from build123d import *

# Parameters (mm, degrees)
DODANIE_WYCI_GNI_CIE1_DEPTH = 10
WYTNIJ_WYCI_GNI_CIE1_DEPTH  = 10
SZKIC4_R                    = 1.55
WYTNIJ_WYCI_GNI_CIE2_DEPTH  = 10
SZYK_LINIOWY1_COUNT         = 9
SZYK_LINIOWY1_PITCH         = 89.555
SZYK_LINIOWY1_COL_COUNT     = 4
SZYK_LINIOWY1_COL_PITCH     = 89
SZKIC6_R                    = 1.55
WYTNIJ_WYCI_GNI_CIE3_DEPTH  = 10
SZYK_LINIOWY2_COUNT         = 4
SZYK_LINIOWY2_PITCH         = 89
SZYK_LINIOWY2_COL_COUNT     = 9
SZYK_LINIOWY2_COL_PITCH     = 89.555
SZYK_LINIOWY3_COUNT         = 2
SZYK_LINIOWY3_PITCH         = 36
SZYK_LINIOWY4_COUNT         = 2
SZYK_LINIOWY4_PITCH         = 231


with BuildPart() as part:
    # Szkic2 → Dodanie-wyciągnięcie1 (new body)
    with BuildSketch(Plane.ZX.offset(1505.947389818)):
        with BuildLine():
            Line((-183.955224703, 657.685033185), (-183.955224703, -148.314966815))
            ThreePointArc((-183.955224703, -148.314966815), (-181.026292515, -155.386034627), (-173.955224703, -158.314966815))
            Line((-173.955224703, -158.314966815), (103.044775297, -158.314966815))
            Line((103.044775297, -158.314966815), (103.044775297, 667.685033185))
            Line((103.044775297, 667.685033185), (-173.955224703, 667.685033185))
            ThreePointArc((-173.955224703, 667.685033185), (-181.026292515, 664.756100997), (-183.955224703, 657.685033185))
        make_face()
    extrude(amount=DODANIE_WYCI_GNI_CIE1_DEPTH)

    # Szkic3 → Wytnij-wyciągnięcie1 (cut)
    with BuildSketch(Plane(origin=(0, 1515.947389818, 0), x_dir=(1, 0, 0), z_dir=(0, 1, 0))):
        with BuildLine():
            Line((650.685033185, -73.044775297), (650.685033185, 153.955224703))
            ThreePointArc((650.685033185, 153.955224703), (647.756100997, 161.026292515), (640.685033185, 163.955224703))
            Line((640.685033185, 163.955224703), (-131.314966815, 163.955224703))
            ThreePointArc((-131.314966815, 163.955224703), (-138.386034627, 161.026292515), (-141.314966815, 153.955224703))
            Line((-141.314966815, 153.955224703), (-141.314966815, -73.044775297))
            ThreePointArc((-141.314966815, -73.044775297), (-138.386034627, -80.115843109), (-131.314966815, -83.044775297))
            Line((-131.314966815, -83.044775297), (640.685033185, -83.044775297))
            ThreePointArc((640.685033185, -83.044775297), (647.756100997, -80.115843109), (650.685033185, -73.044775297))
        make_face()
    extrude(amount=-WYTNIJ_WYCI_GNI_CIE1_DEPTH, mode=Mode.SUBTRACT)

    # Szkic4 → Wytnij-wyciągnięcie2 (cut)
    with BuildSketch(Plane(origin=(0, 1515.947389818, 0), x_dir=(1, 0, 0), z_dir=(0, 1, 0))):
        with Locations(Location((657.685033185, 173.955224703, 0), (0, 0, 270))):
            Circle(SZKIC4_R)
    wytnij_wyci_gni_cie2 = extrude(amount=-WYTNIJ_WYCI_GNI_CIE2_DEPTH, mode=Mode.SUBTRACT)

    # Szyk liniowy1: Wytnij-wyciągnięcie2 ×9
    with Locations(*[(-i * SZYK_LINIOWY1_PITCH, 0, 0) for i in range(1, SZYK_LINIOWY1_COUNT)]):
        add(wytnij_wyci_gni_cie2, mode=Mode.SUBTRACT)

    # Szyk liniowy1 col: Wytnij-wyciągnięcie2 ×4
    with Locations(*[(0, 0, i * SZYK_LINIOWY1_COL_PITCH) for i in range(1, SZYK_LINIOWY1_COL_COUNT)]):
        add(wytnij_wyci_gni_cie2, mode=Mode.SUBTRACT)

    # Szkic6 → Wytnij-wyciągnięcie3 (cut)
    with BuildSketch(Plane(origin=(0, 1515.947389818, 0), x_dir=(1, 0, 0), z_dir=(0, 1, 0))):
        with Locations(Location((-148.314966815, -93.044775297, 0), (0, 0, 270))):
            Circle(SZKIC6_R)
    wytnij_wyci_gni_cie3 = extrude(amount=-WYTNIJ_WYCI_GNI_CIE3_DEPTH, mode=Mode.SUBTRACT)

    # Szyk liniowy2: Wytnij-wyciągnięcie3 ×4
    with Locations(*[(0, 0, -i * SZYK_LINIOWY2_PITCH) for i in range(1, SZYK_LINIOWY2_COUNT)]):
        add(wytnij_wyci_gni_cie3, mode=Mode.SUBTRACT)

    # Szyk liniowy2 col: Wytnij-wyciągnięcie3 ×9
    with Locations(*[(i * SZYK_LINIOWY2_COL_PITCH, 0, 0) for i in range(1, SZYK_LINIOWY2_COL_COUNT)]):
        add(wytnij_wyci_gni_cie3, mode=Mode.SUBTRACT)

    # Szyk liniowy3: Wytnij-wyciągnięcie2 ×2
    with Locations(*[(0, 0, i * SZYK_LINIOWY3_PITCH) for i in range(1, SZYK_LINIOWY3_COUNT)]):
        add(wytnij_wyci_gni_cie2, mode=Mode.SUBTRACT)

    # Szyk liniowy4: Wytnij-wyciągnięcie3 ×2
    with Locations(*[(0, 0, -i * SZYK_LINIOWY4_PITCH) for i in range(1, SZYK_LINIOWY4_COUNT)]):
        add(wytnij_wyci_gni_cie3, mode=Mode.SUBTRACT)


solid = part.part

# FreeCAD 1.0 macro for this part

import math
import FreeCAD as App
import Part
import Sketcher
from FreeCAD import Vector
Q = App.Units.Quantity

doc = App.newDocument("Part")
body = doc.addObject("PartDesign::Body", "Body")

# Sketch on XZ plane
sketch1 = body.newObject("Sketcher::SketchObject", "Sketch")
sketch1.AttachmentSupport = (doc.getObject("XZ_Plane"), [""])
sketch1.MapMode = "FlatFace"
sketch1.AttachmentOffset = App.Placement(Vector(0, 0, -1505.94739), App.Rotation())
sketch1.addGeometry(Part.LineSegment(Vector(658, -184, 0), Vector(-148, -184, 0)), False)
sketch1.addGeometry(Part.ArcOfCircle(Part.Circle(Vector(-148, -174, 0), Vector(0, 0, 1), 10), math.radians(180), math.radians(270)), False)
sketch1.addGeometry(Part.LineSegment(Vector(-158, -174, 0), Vector(-158, 103, 0)), False)
sketch1.addGeometry(Part.LineSegment(Vector(-158, 103, 0), Vector(668, 103, 0)), False)
sketch1.addGeometry(Part.LineSegment(Vector(668, 103, 0), Vector(668, -174, 0)), False)
sketch1.addGeometry(Part.ArcOfCircle(Part.Circle(Vector(658, -174, 0), Vector(0, 0, 1), 10), math.radians(-90), math.radians(0)), False)
sketch1.addConstraint(Sketcher.Constraint("Tangent", 0, 2, 1, 2))
sketch1.addConstraint(Sketcher.Constraint("Tangent", 1, 1, 2, 1))
sketch1.addConstraint(Sketcher.Constraint("Coincident", 2, 2, 3, 1))
sketch1.addConstraint(Sketcher.Constraint("Coincident", 3, 2, 4, 1))
sketch1.addConstraint(Sketcher.Constraint("Tangent", 4, 2, 5, 2))
sketch1.addConstraint(Sketcher.Constraint("Tangent", 5, 1, 0, 1))
sketch1.addConstraint(Sketcher.Constraint("Horizontal", 0))
sketch1.addConstraint(Sketcher.Constraint("Vertical", 2))
sketch1.addConstraint(Sketcher.Constraint("Horizontal", 3))
sketch1.addConstraint(Sketcher.Constraint("Vertical", 4))
sketch1.addConstraint(Sketcher.Constraint("Equal", 1, 5))
sketch1.addConstraint(Sketcher.Constraint("Radius", 1, Q("10 mm")))
sketch1.addConstraint(Sketcher.Constraint("DistanceX", 0, 2, 0, 1, Q("806 mm")))
sketch1.addConstraint(Sketcher.Constraint("DistanceY", 2, 1, 2, 2, Q("277 mm")))
sketch1.addConstraint(Sketcher.Constraint("DistanceX", 1, 3, -1, 1, Q("148.314967 mm")))
sketch1.addConstraint(Sketcher.Constraint("DistanceY", 1, 3, -1, 1, Q("173.955225 mm")))
pad1 = body.newObject("PartDesign::Pad", "Pad")
pad1.Profile = sketch1
pad1.Length = 10
pad1.Reversed = True

# Sketch on XZ plane
sketch2 = body.newObject("Sketcher::SketchObject", "Sketch001")
sketch2.AttachmentSupport = (doc.getObject("XZ_Plane"), [""])
sketch2.MapMode = "FlatFace"
sketch2.AttachmentOffset = App.Placement(Vector(0, 0, -1515.94739), App.Rotation())
sketch2.addGeometry(Part.LineSegment(Vector(651, 73, 0), Vector(651, -154, 0)), False)
sketch2.addGeometry(Part.ArcOfCircle(Part.Circle(Vector(641, -154, 0), Vector(0, 0, 1), 10), math.radians(-90), math.radians(0)), False)
sketch2.addGeometry(Part.LineSegment(Vector(641, -164, 0), Vector(-131, -164, 0)), False)
sketch2.addGeometry(Part.ArcOfCircle(Part.Circle(Vector(-131, -154, 0), Vector(0, 0, 1), 10), math.radians(180), math.radians(270)), False)
sketch2.addGeometry(Part.LineSegment(Vector(-141, -154, 0), Vector(-141, 73, 0)), False)
sketch2.addGeometry(Part.ArcOfCircle(Part.Circle(Vector(-131, 73, 0), Vector(0, 0, 1), 10), math.radians(90), math.radians(180)), False)
sketch2.addGeometry(Part.LineSegment(Vector(-131, 83, 0), Vector(641, 83, 0)), False)
sketch2.addGeometry(Part.ArcOfCircle(Part.Circle(Vector(641, 73, 0), Vector(0, 0, 1), 10), math.radians(0), math.radians(90)), False)
sketch2.addConstraint(Sketcher.Constraint("Tangent", 0, 2, 1, 2))
sketch2.addConstraint(Sketcher.Constraint("Tangent", 1, 1, 2, 1))
sketch2.addConstraint(Sketcher.Constraint("Tangent", 2, 2, 3, 2))
sketch2.addConstraint(Sketcher.Constraint("Tangent", 3, 1, 4, 1))
sketch2.addConstraint(Sketcher.Constraint("Tangent", 4, 2, 5, 2))
sketch2.addConstraint(Sketcher.Constraint("Tangent", 5, 1, 6, 1))
sketch2.addConstraint(Sketcher.Constraint("Tangent", 6, 2, 7, 2))
sketch2.addConstraint(Sketcher.Constraint("Tangent", 7, 1, 0, 1))
sketch2.addConstraint(Sketcher.Constraint("Vertical", 0))
sketch2.addConstraint(Sketcher.Constraint("Horizontal", 2))
sketch2.addConstraint(Sketcher.Constraint("Vertical", 4))
sketch2.addConstraint(Sketcher.Constraint("Horizontal", 6))
sketch2.addConstraint(Sketcher.Constraint("Equal", 1, 3))
sketch2.addConstraint(Sketcher.Constraint("Equal", 3, 5))
sketch2.addConstraint(Sketcher.Constraint("Equal", 5, 7))
sketch2.addConstraint(Sketcher.Constraint("Radius", 1, Q("10 mm")))
sketch2.addConstraint(Sketcher.Constraint("DistanceX", 2, 2, 2, 1, Q("772 mm")))
sketch2.addConstraint(Sketcher.Constraint("DistanceY", 0, 2, 0, 1, Q("227 mm")))
sketch2.addConstraint(Sketcher.Constraint("DistanceX", -1, 1, 1, 3, Q("640.685033 mm")))
sketch2.addConstraint(Sketcher.Constraint("DistanceY", 1, 3, -1, 1, Q("153.955225 mm")))
pocket1 = body.newObject("PartDesign::Pocket", "Pocket")
pocket1.Profile = sketch2
pocket1.Length = 10
pocket1.Reversed = True

# Sketch on XZ plane
sketch3 = body.newObject("Sketcher::SketchObject", "Sketch002")
sketch3.AttachmentSupport = (doc.getObject("XZ_Plane"), [""])
sketch3.MapMode = "FlatFace"
sketch3.AttachmentOffset = App.Placement(Vector(0, 0, -1515.94739), App.Rotation())
sketch3.addGeometry(Part.Circle(Vector(657.7, -174, 0), Vector(0, 0, 1), 1.6), False)
sketch3.addConstraint(Sketcher.Constraint("Diameter", 0, Q("3.1 mm")))
sketch3.addConstraint(Sketcher.Constraint("DistanceX", -1, 1, 0, 3, Q("657.685033 mm")))
sketch3.addConstraint(Sketcher.Constraint("DistanceY", 0, 3, -1, 1, Q("173.955225 mm")))
pocket2 = body.newObject("PartDesign::Pocket", "Pocket001")
pocket2.Profile = sketch3
pocket2.Length = 10
pocket2.Reversed = True
doc.recompute()

linearpattern = body.newObject("PartDesign::LinearPattern", "LinearPattern")
linearpattern.Originals = [pocket2]
linearpattern.Direction = (doc.getObject("X_Axis"), [""])
linearpattern.Mode = "offset"
linearpattern.Offset = 89.555
linearpattern.Occurrences = 9
linearpattern.Reversed = True
body.Tip = linearpattern
doc.recompute()

linearpattern2 = body.newObject("PartDesign::LinearPattern", "LinearPattern001")
linearpattern2.Originals = [pocket2]
linearpattern2.Direction = (doc.getObject("Z_Axis"), [""])
linearpattern2.Mode = "offset"
linearpattern2.Offset = 89
linearpattern2.Occurrences = 4
body.Tip = linearpattern2

# Sketch on XZ plane
sketch4 = body.newObject("Sketcher::SketchObject", "Sketch003")
sketch4.AttachmentSupport = (doc.getObject("XZ_Plane"), [""])
sketch4.MapMode = "FlatFace"
sketch4.AttachmentOffset = App.Placement(Vector(0, 0, -1515.94739), App.Rotation())
sketch4.addGeometry(Part.Circle(Vector(-148.3, 93, 0), Vector(0, 0, 1), 1.6), False)
sketch4.addConstraint(Sketcher.Constraint("Diameter", 0, Q("3.1 mm")))
sketch4.addConstraint(Sketcher.Constraint("DistanceX", 0, 3, -1, 1, Q("148.314967 mm")))
sketch4.addConstraint(Sketcher.Constraint("DistanceY", -1, 1, 0, 3, Q("93.044775 mm")))
pocket3 = body.newObject("PartDesign::Pocket", "Pocket002")
pocket3.Profile = sketch4
pocket3.Length = 10
pocket3.Reversed = True
doc.recompute()

linearpattern3 = body.newObject("PartDesign::LinearPattern", "LinearPattern002")
linearpattern3.Originals = [pocket3]
linearpattern3.Direction = (doc.getObject("Z_Axis"), [""])
linearpattern3.Mode = "offset"
linearpattern3.Offset = 89
linearpattern3.Occurrences = 4
linearpattern3.Reversed = True
body.Tip = linearpattern3
doc.recompute()

linearpattern4 = body.newObject("PartDesign::LinearPattern", "LinearPattern003")
linearpattern4.Originals = [pocket3]
linearpattern4.Direction = (doc.getObject("X_Axis"), [""])
linearpattern4.Mode = "offset"
linearpattern4.Offset = 89.555
linearpattern4.Occurrences = 9
body.Tip = linearpattern4
doc.recompute()

linearpattern5 = body.newObject("PartDesign::LinearPattern", "LinearPattern004")
linearpattern5.Originals = [pocket2]
linearpattern5.Direction = (doc.getObject("Z_Axis"), [""])
linearpattern5.Mode = "offset"
linearpattern5.Offset = 36
linearpattern5.Occurrences = 2
body.Tip = linearpattern5
doc.recompute()

linearpattern6 = body.newObject("PartDesign::LinearPattern", "LinearPattern005")
linearpattern6.Originals = [pocket3]
linearpattern6.Direction = (doc.getObject("Z_Axis"), [""])
linearpattern6.Mode = "offset"
linearpattern6.Offset = 231
linearpattern6.Occurrences = 2
linearpattern6.Reversed = True
body.Tip = linearpattern6

doc.recompute()
